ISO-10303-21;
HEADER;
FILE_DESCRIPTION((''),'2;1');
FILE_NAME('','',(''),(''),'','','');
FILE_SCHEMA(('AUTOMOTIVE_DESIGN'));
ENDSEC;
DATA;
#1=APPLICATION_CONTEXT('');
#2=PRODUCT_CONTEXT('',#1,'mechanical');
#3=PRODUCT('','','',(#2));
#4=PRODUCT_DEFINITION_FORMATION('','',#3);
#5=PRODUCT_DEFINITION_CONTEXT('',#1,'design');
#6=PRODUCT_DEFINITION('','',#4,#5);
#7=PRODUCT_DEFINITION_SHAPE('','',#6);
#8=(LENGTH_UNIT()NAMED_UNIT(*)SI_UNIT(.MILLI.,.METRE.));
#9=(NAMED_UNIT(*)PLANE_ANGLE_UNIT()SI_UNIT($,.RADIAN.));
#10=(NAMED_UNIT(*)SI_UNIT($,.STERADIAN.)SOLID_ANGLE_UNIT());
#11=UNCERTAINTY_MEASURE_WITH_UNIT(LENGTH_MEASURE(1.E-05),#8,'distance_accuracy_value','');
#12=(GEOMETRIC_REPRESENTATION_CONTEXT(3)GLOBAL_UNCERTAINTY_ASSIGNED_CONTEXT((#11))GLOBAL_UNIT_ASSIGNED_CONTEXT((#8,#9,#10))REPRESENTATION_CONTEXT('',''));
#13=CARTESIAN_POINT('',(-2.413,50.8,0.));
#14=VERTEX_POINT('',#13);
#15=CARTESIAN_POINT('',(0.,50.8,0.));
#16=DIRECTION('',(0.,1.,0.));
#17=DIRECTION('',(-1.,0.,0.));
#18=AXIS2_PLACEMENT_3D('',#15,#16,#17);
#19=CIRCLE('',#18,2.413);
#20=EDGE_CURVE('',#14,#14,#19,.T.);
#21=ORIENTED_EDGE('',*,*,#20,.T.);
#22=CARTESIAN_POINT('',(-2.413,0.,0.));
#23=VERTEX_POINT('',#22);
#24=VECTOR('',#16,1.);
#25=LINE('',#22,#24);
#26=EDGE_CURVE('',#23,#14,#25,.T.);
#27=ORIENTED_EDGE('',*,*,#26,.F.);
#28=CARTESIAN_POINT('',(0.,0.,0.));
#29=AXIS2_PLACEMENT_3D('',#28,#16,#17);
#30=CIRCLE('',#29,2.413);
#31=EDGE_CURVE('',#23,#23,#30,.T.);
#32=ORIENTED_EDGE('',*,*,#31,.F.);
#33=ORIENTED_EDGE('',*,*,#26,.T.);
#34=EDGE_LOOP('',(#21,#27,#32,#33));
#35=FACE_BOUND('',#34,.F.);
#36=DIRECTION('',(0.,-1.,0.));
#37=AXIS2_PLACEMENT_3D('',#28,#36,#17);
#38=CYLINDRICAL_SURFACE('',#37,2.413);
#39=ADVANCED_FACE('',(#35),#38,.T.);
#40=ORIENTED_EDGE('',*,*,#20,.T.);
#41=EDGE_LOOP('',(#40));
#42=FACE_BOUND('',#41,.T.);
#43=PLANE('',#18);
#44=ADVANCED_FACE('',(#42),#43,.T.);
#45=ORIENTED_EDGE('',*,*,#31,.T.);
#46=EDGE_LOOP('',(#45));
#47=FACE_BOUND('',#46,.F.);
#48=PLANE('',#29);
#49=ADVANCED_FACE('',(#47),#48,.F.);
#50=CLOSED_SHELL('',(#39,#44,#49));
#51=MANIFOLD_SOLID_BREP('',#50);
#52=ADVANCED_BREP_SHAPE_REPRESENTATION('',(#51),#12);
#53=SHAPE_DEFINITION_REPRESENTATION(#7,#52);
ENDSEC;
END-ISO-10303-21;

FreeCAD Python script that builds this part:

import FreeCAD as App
import Part
import Sketcher
Q = App.Units.Quantity

doc = App.newDocument("Part")
body = doc.addObject("PartDesign::Body", "Body")

# Sketch on XZ plane
sketch1 = doc.addObject("Sketcher::SketchObject", "Sketch")
body.addObject(sketch1)
sketch1.AttachmentSupport = (doc.XZ_Plane, [""])
sketch1.MapMode = "FlatFace"
sketch1.addGeometry(Part.Circle(App.Vector(0, 0, 0), App.Vector(0, 0, 1), 2.4), False)
sketch1.addConstraint(Sketcher.Constraint("Coincident", 0, 3, -1, 1))
sketch1.addConstraint(Sketcher.Constraint("Diameter", 0, Q("0.19 in")))
pad1 = doc.addObject("PartDesign::Pad", "Pad")
body.addObject(pad1)
pad1.Profile = sketch1
pad1.Length = Q("2 in")
pad1.Reversed = True

doc.recompute()
